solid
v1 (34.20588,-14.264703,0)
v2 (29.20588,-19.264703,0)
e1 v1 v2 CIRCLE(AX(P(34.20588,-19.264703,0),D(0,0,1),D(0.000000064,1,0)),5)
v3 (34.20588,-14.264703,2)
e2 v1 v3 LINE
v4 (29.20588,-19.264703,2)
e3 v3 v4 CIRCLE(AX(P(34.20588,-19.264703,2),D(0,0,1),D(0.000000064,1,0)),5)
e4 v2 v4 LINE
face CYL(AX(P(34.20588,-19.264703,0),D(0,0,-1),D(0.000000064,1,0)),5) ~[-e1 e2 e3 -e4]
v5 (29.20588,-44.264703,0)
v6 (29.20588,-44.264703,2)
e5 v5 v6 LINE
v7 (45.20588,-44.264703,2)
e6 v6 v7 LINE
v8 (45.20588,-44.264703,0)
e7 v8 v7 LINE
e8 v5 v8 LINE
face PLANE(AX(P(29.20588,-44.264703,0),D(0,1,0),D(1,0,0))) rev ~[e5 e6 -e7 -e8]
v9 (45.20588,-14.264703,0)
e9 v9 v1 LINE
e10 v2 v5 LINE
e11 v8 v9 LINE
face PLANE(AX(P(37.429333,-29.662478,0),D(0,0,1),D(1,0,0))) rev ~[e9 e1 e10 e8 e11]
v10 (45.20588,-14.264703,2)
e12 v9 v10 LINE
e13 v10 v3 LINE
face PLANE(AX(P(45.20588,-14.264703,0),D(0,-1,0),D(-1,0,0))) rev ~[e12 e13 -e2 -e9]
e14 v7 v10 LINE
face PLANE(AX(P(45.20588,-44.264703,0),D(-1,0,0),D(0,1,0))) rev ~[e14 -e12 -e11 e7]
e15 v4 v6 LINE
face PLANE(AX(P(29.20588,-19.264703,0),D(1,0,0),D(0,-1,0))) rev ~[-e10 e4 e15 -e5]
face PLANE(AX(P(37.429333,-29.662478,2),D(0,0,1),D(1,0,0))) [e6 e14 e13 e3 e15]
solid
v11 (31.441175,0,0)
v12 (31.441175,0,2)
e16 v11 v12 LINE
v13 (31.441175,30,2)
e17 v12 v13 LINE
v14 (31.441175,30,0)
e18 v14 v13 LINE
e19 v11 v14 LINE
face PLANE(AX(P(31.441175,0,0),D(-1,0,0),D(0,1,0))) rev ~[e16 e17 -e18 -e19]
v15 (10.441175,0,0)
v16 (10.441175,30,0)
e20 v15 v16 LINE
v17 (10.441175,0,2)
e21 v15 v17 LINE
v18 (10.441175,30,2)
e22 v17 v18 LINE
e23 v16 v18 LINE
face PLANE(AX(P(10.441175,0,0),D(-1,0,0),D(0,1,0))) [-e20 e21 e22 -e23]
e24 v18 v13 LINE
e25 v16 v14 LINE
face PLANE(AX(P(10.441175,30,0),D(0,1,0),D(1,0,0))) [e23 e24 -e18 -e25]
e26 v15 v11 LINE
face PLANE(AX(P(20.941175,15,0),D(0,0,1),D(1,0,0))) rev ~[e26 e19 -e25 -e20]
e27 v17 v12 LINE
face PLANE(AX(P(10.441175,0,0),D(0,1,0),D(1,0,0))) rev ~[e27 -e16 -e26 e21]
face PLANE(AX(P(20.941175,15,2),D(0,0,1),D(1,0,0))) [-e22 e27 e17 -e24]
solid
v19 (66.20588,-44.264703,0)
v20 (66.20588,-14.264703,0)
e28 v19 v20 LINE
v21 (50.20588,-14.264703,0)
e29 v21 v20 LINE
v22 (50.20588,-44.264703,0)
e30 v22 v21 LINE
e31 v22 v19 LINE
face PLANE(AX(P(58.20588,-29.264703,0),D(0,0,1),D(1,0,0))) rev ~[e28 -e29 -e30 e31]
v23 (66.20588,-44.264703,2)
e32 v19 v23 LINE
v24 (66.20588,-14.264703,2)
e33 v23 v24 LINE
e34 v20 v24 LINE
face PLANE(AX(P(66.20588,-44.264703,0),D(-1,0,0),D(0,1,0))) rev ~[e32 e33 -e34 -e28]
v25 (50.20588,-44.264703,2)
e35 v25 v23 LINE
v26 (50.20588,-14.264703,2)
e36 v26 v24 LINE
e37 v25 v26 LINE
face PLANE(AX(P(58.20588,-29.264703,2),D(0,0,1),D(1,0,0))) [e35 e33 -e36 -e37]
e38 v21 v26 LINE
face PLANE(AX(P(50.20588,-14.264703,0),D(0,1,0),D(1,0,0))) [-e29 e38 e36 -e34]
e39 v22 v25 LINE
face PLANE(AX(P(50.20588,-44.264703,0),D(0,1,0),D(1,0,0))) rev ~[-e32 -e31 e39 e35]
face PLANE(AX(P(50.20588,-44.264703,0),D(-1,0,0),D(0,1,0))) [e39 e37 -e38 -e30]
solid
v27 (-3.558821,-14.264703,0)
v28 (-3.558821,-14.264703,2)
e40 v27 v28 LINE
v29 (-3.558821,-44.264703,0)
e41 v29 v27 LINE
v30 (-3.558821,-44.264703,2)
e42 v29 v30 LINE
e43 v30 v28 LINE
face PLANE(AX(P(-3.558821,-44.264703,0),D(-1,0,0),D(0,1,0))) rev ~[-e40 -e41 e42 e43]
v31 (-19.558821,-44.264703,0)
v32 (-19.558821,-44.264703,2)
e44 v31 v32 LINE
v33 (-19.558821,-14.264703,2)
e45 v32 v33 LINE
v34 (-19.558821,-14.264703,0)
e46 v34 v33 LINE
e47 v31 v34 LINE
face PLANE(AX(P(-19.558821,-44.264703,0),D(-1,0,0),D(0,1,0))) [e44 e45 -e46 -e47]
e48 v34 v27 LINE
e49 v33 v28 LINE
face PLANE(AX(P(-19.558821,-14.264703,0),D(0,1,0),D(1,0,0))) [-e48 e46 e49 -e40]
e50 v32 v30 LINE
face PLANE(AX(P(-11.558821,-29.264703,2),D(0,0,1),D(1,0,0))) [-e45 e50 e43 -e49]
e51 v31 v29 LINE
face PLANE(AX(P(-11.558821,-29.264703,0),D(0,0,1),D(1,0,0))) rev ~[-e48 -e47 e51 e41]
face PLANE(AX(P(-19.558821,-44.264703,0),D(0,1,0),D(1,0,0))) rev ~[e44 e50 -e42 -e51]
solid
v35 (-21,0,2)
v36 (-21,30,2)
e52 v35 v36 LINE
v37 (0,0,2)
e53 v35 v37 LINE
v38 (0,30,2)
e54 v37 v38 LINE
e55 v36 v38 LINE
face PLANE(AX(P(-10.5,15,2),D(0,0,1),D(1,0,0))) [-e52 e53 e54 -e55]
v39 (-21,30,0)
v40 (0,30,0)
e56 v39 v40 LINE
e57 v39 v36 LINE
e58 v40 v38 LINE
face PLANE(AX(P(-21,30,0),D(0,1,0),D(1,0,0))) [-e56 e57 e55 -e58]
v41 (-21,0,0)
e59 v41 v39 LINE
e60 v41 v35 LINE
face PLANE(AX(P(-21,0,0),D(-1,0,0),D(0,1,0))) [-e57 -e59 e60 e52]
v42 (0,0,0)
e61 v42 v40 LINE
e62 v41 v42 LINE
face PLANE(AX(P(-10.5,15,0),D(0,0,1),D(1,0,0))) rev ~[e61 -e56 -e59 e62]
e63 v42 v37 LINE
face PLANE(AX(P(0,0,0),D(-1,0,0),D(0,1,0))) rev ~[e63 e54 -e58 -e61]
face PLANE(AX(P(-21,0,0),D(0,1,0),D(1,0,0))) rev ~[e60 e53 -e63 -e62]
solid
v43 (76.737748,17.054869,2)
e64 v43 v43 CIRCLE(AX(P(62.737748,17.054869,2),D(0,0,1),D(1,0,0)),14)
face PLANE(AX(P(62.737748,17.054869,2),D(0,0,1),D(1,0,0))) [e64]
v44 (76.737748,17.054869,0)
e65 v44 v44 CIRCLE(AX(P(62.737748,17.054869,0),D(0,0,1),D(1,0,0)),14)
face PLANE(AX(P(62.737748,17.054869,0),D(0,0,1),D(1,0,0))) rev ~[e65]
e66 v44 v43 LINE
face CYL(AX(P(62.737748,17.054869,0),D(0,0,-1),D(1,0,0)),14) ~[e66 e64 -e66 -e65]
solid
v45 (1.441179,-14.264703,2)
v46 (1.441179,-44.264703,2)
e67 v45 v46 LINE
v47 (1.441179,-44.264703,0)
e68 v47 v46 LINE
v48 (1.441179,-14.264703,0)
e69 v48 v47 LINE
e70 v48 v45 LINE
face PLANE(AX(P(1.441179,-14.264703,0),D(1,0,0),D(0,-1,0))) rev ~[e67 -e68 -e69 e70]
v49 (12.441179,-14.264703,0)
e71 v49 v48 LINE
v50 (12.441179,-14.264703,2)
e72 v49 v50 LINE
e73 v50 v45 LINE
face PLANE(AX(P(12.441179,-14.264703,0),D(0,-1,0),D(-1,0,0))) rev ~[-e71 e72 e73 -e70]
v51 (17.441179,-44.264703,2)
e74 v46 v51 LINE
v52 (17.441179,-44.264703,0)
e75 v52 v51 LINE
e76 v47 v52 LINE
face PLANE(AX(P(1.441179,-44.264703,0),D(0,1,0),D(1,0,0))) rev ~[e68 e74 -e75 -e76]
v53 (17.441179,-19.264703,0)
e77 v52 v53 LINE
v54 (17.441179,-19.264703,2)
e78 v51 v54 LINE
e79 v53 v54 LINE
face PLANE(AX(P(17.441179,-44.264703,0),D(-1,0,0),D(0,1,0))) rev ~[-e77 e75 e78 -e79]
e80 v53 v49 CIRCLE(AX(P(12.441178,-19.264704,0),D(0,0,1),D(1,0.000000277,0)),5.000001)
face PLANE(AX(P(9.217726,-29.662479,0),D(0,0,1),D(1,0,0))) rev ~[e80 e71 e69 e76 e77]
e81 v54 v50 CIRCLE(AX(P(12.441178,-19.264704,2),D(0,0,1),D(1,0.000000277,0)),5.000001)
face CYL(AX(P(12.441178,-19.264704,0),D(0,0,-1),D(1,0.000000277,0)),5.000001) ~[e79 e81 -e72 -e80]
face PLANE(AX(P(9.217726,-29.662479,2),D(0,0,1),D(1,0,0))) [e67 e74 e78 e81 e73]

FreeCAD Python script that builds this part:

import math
import FreeCAD as App
import Part
import Sketcher
from FreeCAD import Vector
Q = App.Units.Quantity


def add_polygon(sketch, points):
    """Adds a closed chain of lines whose ends are joined by coincident constraints."""
    first, n = sketch.GeometryCount, len(points)
    for a, b in zip(points, points[1:] + points[:1]):
        sketch.addGeometry(Part.LineSegment(App.Vector(*a, 0), App.Vector(*b, 0)), False)
    for i in range(n):
        sketch.addConstraint(Sketcher.Constraint("Coincident", first + i, 2, first + (i + 1) % n, 1))

doc = App.newDocument("Part")
body = doc.addObject("PartDesign::Body", "Body")
body.AllowCompound = True

# Sketch on XY plane
sketch1 = body.newObject("Sketcher::SketchObject", "Sketch")
sketch1.AttachmentSupport = (doc.getObject("XY_Plane"), [""])
sketch1.MapMode = "FlatFace"
add_polygon(sketch1, [(-21, 30), (-21, 0), (0, 0), (0, 30)])  # lines 0-3
add_polygon(sketch1, [(10.4, 30), (10.4, 0), (31.4, 0), (31.4, 30)])  # lines 4-7
add_polygon(sketch1, [(-19.6, -14.3), (-19.6, -44.3), (-3.6, -44.3), (-3.6, -14.3)])  # lines 8-11
sketch1.addGeometry(Part.LineSegment(Vector(17.4, -44.3, 0), Vector(17.4, -19.3, 0)), False)  # 12
sketch1.addGeometry(Part.ArcOfCircle(Part.Circle(Vector(12.4, -19.3, 0), Vector(0, 0, 1), 5), math.radians(0), math.radians(90)), False)  # 13
sketch1.addGeometry(Part.LineSegment(Vector(12.4, -14.3, 0), Vector(1.4, -14.3, 0)), False)  # 14
sketch1.addGeometry(Part.LineSegment(Vector(1.4, -14.3, 0), Vector(1.4, -44.3, 0)), False)  # 15
sketch1.addGeometry(Part.LineSegment(Vector(1.4, -44.3, 0), Vector(17.4, -44.3, 0)), False)  # 16
sketch1.addGeometry(Part.LineSegment(Vector(45.2, -14.3, 0), Vector(34.2, -14.3, 0)), False)  # 17
sketch1.addGeometry(Part.ArcOfCircle(Part.Circle(Vector(34.2, -19.3, 0), Vector(0, 0, 1), 5), math.radians(90), math.radians(180)), False)  # 18
sketch1.addGeometry(Part.LineSegment(Vector(29.2, -19.3, 0), Vector(29.2, -44.3, 0)), False)  # 19
sketch1.addGeometry(Part.LineSegment(Vector(29.2, -44.3, 0), Vector(45.2, -44.3, 0)), False)  # 20
sketch1.addGeometry(Part.LineSegment(Vector(45.2, -44.3, 0), Vector(45.2, -14.3, 0)), False)  # 21
add_polygon(sketch1, [(50.2, -14.3), (50.2, -44.3), (66.2, -44.3), (66.2, -14.3)])  # lines 22-25
sketch1.addGeometry(Part.Circle(Vector(62.7, 17.1, 0), Vector(0, 0, 1), 14), False)  # 26
sketch1.addConstraint([
    Sketcher.Constraint("Tangent", 12, 2, 13, 1),
    Sketcher.Constraint("Tangent", 13, 2, 14, 1),
    Sketcher.Constraint("Coincident", 14, 2, 15, 1),
    Sketcher.Constraint("Coincident", 15, 2, 16, 1),
    Sketcher.Constraint("Coincident", 16, 2, 12, 1),
    Sketcher.Constraint("Tangent", 17, 2, 18, 1),
    Sketcher.Constraint("Tangent", 18, 2, 19, 1),
    Sketcher.Constraint("Coincident", 19, 2, 20, 1),
    Sketcher.Constraint("Coincident", 20, 2, 21, 1),
    Sketcher.Constraint("Coincident", 21, 2, 17, 1),
    Sketcher.Constraint("Vertical", 0),
    Sketcher.Constraint("Horizontal", 1),
    Sketcher.Constraint("Vertical", 2),
    Sketcher.Constraint("Horizontal", 3),
    Sketcher.Constraint("Vertical", 4),
    Sketcher.Constraint("Horizontal", 5),
    Sketcher.Constraint("Vertical", 6),
    Sketcher.Constraint("Horizontal", 7),
    Sketcher.Constraint("Vertical", 8),
    Sketcher.Constraint("Horizontal", 9),
    Sketcher.Constraint("Vertical", 10),
    Sketcher.Constraint("Horizontal", 11),
    Sketcher.Constraint("Vertical", 12),
    Sketcher.Constraint("Horizontal", 14),
    Sketcher.Constraint("Vertical", 15),
    Sketcher.Constraint("Horizontal", 16),
    Sketcher.Constraint("Horizontal", 17),
    Sketcher.Constraint("Vertical", 19),
    Sketcher.Constraint("Horizontal", 20),
    Sketcher.Constraint("Vertical", 21),
    Sketcher.Constraint("Vertical", 22),
    Sketcher.Constraint("Horizontal", 23),
    Sketcher.Constraint("Vertical", 24),
    Sketcher.Constraint("Horizontal", 25),
    Sketcher.Constraint("Coincident", 1, 2, -1, 1),
    Sketcher.Constraint("Equal", 13, 18),
    Sketcher.Constraint("PointOnObject", 4, 2, -1),
    Sketcher.Constraint("Horizontal", 13, 3, 18, 3),
    Sketcher.Constraint("Horizontal", 3, 2, 6, 2),
    Sketcher.Constraint("Horizontal", 11, 2, 13, 2),
    Sketcher.Constraint("Horizontal", 9, 2, 15, 2),
    Sketcher.Constraint("Horizontal", 16, 2, 19, 2),
    Sketcher.Constraint("Horizontal", 20, 2, 22, 2),
    Sketcher.Constraint("Horizontal", 21, 2, 24, 2),
    Sketcher.Constraint("Equal", 3, 5),
    Sketcher.Constraint("Equal", 11, 16),
    Sketcher.Constraint("Equal", 14, 17),
    Sketcher.Constraint("Equal", 20, 23),
    Sketcher.Constraint("Equal", 6, 8),
    Sketcher.Constraint("Diameter", 26, Q("28 mm")),
    Sketcher.Constraint("Radius", 13, Q("5.000001 mm")),
    Sketcher.Constraint("DistanceX", 1, 1, 1, 2, Q("21 mm")),
    Sketcher.Constraint("DistanceX", 9, 1, 9, 2, Q("16 mm")),
    Sketcher.Constraint("DistanceY", 0, 2, 0, 1, Q("30 mm")),
    Sketcher.Constraint("DistanceX", 8, 2, 13, 3, Q("31.999999 mm")),
    Sketcher.Constraint("DistanceX", 20, 2, 22, 2, Q("5 mm")),
    Sketcher.Constraint("DistanceX", 8, 2, 18, 3, Q("53.764701 mm")),
    Sketcher.Constraint("DistanceX", -1, 1, 18, 3, Q("34.20588 mm")),
    Sketcher.Constraint("DistanceX", -1, 1, 26, 3, Q("62.737748 mm")),
    Sketcher.Constraint("DistanceY", -1, 1, 26, 3, Q("17.054869 mm")),
    Sketcher.Constraint("DistanceY", 18, 3, 26, 3, Q("36.319572 mm")),
    Sketcher.Constraint("DistanceX", -1, 1, 4, 2, Q("10.441175 mm")),
])
pad1 = body.newObject("PartDesign::Pad", "Pad")
pad1.Profile = sketch1
pad1.Length = 2

doc.recompute()
